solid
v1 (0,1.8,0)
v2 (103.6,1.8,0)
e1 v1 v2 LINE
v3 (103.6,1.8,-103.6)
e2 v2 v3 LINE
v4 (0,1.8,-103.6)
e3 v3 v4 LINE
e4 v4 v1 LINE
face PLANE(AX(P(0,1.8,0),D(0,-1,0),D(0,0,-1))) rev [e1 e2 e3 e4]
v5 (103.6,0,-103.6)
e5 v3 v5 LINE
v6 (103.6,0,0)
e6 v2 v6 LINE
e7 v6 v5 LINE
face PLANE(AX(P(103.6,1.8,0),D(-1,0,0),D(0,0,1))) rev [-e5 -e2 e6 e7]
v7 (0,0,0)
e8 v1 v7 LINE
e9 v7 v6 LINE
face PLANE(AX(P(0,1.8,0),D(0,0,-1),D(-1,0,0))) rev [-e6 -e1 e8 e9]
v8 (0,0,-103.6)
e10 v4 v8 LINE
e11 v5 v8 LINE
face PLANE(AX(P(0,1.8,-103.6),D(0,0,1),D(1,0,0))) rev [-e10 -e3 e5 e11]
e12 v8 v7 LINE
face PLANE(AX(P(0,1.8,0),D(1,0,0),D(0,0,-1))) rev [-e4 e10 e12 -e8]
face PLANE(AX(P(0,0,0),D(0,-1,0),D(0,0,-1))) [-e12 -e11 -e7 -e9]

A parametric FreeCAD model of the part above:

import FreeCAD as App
import Part
import Sketcher

V = App.Vector
Q = App.Units.Quantity

doc = App.newDocument("Part")
params = doc.addObject("Spreadsheet::Sheet", "Params")
for row, (alias, value) in enumerate([
    ("sketch1_width", "103.6 mm"),
    ("pad1_length", "1.8 mm"),
], start=1):
    params.set(f"A{row}", alias)
    params.set(f"B{row}", "=" + value)
    params.setAlias(f"B{row}", alias)

body = doc.addObject("PartDesign::Body", "Body")

# Sketch on XZ plane
sketch1 = body.newObject("Sketcher::SketchObject", "Sketch")
sketch1.AttachmentSupport = (doc.getObject("XZ_Plane"), [""])
sketch1.MapMode = "FlatFace"
sketch1.addGeometry([
    Part.LineSegment(V(0, -104, 0), V(0, 0, 0)),
    Part.LineSegment(V(0, 0, 0), V(104, 0, 0)),
    Part.LineSegment(V(104, 0, 0), V(104, -104, 0)),
    Part.LineSegment(V(104, -104, 0), V(0, -104, 0)),
], False)
sketch1.addConstraint([
    Sketcher.Constraint("Coincident", 0, 2, 1, 1),
    Sketcher.Constraint("Coincident", 1, 2, 2, 1),
    Sketcher.Constraint("Coincident", 2, 2, 3, 1),
    Sketcher.Constraint("Coincident", 3, 2, 0, 1),
    Sketcher.Constraint("Vertical", 0),
    Sketcher.Constraint("Horizontal", 1),
    Sketcher.Constraint("Vertical", 2),
    Sketcher.Constraint("Horizontal", 3),
    Sketcher.Constraint("Coincident", 0, 2, -1, 1),
    Sketcher.Constraint("Equal", 3, 0),
    Sketcher.Constraint("DistanceX", 1, 1, 1, 2, Q("103.6 mm")),
])
sketch1.setExpression("Constraints[10]", "Params.sketch1_width")
pad1 = body.newObject("PartDesign::Pad", "Pad")
pad1.Profile = sketch1
pad1.setExpression("Length", "Params.pad1_length")
pad1.Reversed = True

doc.recompute()
